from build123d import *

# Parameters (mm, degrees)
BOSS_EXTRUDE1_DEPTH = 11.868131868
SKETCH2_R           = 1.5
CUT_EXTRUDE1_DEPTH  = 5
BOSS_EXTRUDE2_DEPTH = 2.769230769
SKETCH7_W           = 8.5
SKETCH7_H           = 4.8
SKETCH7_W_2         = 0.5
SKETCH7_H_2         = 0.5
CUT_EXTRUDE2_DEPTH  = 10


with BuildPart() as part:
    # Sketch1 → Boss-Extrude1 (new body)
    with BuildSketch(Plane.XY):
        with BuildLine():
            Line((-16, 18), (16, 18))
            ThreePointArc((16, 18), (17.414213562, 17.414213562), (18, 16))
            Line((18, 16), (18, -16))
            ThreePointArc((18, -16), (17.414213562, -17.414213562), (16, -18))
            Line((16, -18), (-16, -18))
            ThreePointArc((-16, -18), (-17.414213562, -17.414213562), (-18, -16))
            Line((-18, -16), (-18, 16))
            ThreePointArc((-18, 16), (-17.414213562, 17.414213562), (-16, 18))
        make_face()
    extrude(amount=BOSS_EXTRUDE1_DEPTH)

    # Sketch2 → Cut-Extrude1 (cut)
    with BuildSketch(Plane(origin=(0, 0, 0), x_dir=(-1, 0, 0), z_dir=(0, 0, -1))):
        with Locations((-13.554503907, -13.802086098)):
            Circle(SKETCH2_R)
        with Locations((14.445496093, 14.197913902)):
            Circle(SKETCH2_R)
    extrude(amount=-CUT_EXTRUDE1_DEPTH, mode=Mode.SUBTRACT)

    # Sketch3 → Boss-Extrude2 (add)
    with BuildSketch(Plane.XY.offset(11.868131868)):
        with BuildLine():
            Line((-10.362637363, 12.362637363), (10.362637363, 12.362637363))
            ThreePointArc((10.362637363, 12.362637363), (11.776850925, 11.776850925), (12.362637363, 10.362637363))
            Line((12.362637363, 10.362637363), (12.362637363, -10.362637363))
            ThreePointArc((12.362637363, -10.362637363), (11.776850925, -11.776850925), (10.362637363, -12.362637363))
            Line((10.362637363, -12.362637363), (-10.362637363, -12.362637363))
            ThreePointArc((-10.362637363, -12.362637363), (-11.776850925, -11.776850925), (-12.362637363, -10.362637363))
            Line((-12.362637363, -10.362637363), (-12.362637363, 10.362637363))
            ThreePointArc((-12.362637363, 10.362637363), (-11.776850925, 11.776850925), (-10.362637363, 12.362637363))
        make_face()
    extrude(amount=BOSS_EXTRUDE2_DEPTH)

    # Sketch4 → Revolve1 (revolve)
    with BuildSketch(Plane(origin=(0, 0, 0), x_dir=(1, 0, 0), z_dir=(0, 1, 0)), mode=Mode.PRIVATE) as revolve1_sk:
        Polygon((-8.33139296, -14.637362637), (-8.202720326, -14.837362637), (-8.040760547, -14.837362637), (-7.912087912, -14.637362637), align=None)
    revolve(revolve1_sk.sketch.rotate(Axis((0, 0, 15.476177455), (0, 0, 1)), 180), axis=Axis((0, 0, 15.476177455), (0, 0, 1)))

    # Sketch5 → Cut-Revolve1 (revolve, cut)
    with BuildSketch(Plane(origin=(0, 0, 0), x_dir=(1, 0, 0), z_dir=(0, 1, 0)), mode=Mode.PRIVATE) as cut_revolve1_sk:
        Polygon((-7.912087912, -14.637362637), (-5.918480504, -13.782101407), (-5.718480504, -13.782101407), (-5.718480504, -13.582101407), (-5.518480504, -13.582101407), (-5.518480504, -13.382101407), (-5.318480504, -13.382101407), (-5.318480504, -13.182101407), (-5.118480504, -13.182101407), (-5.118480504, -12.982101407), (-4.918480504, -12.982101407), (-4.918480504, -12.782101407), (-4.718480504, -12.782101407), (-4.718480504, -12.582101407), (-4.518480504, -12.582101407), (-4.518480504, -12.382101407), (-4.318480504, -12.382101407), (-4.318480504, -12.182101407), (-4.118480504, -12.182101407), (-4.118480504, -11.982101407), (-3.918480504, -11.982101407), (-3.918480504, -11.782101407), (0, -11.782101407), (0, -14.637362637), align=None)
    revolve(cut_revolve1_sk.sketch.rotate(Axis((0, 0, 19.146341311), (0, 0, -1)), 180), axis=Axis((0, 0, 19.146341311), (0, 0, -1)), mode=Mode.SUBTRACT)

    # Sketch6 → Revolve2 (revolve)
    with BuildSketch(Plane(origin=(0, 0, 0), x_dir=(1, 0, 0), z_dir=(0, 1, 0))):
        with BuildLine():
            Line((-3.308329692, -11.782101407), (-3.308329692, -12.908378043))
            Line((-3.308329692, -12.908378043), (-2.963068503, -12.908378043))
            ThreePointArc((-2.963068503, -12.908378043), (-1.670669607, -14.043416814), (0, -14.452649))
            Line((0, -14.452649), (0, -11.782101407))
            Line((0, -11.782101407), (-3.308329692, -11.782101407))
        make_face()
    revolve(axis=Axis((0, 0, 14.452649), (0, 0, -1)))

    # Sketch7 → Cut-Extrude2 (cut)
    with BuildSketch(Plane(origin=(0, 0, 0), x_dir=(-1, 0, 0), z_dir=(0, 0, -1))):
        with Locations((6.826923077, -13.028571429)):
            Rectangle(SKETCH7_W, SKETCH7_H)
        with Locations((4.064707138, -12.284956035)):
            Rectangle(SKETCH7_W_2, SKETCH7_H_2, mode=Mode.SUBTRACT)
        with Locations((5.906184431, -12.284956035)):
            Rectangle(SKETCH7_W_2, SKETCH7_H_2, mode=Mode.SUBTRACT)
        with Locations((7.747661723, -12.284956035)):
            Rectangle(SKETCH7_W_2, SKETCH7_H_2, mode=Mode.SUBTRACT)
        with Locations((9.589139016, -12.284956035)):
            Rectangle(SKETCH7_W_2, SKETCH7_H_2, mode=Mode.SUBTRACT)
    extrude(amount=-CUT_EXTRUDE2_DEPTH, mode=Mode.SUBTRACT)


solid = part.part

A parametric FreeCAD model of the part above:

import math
import FreeCAD as App
import Part
import Sketcher
from FreeCAD import Vector
Q = App.Units.Quantity


def add_polygon(sketch, points):
    """Adds a closed chain of lines whose ends are joined by coincident constraints."""
    first, n = sketch.GeometryCount, len(points)
    for a, b in zip(points, points[1:] + points[:1]):
        sketch.addGeometry(Part.LineSegment(App.Vector(*a, 0), App.Vector(*b, 0)), False)
    for i in range(n):
        sketch.addConstraint(Sketcher.Constraint("Coincident", first + i, 2, first + (i + 1) % n, 1))

doc = App.newDocument("Part")
body = doc.addObject("PartDesign::Body", "Body")

# Sketch on XY plane
sketch1 = body.newObject("Sketcher::SketchObject", "Sketch")
sketch1.AttachmentSupport = (doc.getObject("XY_Plane"), [""])
sketch1.MapMode = "FlatFace"
sketch1.addGeometry(Part.LineSegment(Vector(16, 18, 0), Vector(-16, 18, 0)), False)
sketch1.addGeometry(Part.ArcOfCircle(Part.Circle(Vector(-16, 16, 0), Vector(0, 0, 1), 2), math.radians(90), math.radians(180)), False)
sketch1.addGeometry(Part.LineSegment(Vector(-18, 16, 0), Vector(-18, -16, 0)), False)
sketch1.addGeometry(Part.ArcOfCircle(Part.Circle(Vector(-16, -16, 0), Vector(0, 0, 1), 2), math.radians(-180), math.radians(-90)), False)
sketch1.addGeometry(Part.LineSegment(Vector(-16, -18, 0), Vector(16, -18, 0)), False)
sketch1.addGeometry(Part.ArcOfCircle(Part.Circle(Vector(16, -16, 0), Vector(0, 0, 1), 2), math.radians(-90), math.radians(0)), False)
sketch1.addGeometry(Part.LineSegment(Vector(18, -16, 0), Vector(18, 16, 0)), False)
sketch1.addGeometry(Part.ArcOfCircle(Part.Circle(Vector(16, 16, 0), Vector(0, 0, 1), 2), math.radians(0), math.radians(90)), False)
sketch1.addConstraint(Sketcher.Constraint("Tangent", 0, 2, 1, 1))
sketch1.addConstraint(Sketcher.Constraint("Tangent", 1, 2, 2, 1))
sketch1.addConstraint(Sketcher.Constraint("Tangent", 2, 2, 3, 1))
sketch1.addConstraint(Sketcher.Constraint("Tangent", 3, 2, 4, 1))
sketch1.addConstraint(Sketcher.Constraint("Tangent", 4, 2, 5, 1))
sketch1.addConstraint(Sketcher.Constraint("Tangent", 5, 2, 6, 1))
sketch1.addConstraint(Sketcher.Constraint("Tangent", 6, 2, 7, 1))
sketch1.addConstraint(Sketcher.Constraint("Tangent", 7, 2, 0, 1))
sketch1.addConstraint(Sketcher.Constraint("Horizontal", 0))
sketch1.addConstraint(Sketcher.Constraint("Vertical", 2))
sketch1.addConstraint(Sketcher.Constraint("Horizontal", 4))
sketch1.addConstraint(Sketcher.Constraint("Vertical", 6))
sketch1.addConstraint(Sketcher.Constraint("Equal", 1, 3))
sketch1.addConstraint(Sketcher.Constraint("Equal", 3, 5))
sketch1.addConstraint(Sketcher.Constraint("Equal", 5, 7))
sketch1.addConstraint(Sketcher.Constraint("Symmetric", 1, 3, 5, 3, -1, 1))
sketch1.addConstraint(Sketcher.Constraint("Equal", 4, 2))
sketch1.addConstraint(Sketcher.Constraint("Radius", 1, Q("2 mm")))
sketch1.addConstraint(Sketcher.Constraint("DistanceX", 0, 2, 0, 1, Q("32 mm")))
pad1 = body.newObject("PartDesign::Pad", "Pad")
pad1.Profile = sketch1
pad1.Length = 11.868132

# Sketch on XY plane
sketch2 = body.newObject("Sketcher::SketchObject", "Sketch001")
sketch2.AttachmentSupport = (doc.getObject("XY_Plane"), [""])
sketch2.MapMode = "FlatFace"
sketch2.addGeometry(Part.Circle(Vector(13.6, -13.8, 0), Vector(0, 0, 1), 1.5), False)
sketch2.addGeometry(Part.Circle(Vector(-14.4, 14.2, 0), Vector(0, 0, 1), 1.5), False)
sketch2.addConstraint(Sketcher.Constraint("Equal", 0, 1))
sketch2.addConstraint(Sketcher.Constraint("Diameter", 0, Q("3 mm")))
sketch2.addConstraint(Sketcher.Constraint("DistanceX", 1, 3, 0, 3, Q("28 mm")))
sketch2.addConstraint(Sketcher.Constraint("DistanceY", 0, 3, 1, 3, Q("28 mm")))
sketch2.addConstraint(Sketcher.Constraint("DistanceX", -1, 1, 0, 3, Q("13.554504 mm")))
sketch2.addConstraint(Sketcher.Constraint("DistanceY", 0, 3, -1, 1, Q("13.802086 mm")))
pocket1 = body.newObject("PartDesign::Pocket", "Pocket")
pocket1.Profile = sketch2
pocket1.Length = 5
pocket1.Reversed = True

# Sketch on XY plane
sketch3 = body.newObject("Sketcher::SketchObject", "Sketch002")
sketch3.AttachmentSupport = (doc.getObject("XY_Plane"), [""])
sketch3.MapMode = "FlatFace"
sketch3.AttachmentOffset = App.Placement(Vector(0, 0, 11.868132), App.Rotation())
sketch3.addGeometry(Part.LineSegment(Vector(10.4, 12.4, 0), Vector(-10.4, 12.4, 0)), False)
sketch3.addGeometry(Part.ArcOfCircle(Part.Circle(Vector(-10.4, 10.4, 0), Vector(0, 0, 1), 2), math.radians(90), math.radians(180)), False)
sketch3.addGeometry(Part.LineSegment(Vector(-12.4, 10.4, 0), Vector(-12.4, -10.4, 0)), False)
sketch3.addGeometry(Part.ArcOfCircle(Part.Circle(Vector(-10.4, -10.4, 0), Vector(0, 0, 1), 2), math.radians(-180), math.radians(-90)), False)
sketch3.addGeometry(Part.LineSegment(Vector(-10.4, -12.4, 0), Vector(10.4, -12.4, 0)), False)
sketch3.addGeometry(Part.ArcOfCircle(Part.Circle(Vector(10.4, -10.4, 0), Vector(0, 0, 1), 2), math.radians(-90), math.radians(0)), False)
sketch3.addGeometry(Part.LineSegment(Vector(12.4, -10.4, 0), Vector(12.4, 10.4, 0)), False)
sketch3.addGeometry(Part.ArcOfCircle(Part.Circle(Vector(10.4, 10.4, 0), Vector(0, 0, 1), 2), math.radians(0), math.radians(90)), False)
sketch3.addConstraint(Sketcher.Constraint("Tangent", 0, 2, 1, 1))
sketch3.addConstraint(Sketcher.Constraint("Tangent", 1, 2, 2, 1))
sketch3.addConstraint(Sketcher.Constraint("Tangent", 2, 2, 3, 1))
sketch3.addConstraint(Sketcher.Constraint("Tangent", 3, 2, 4, 1))
sketch3.addConstraint(Sketcher.Constraint("Tangent", 4, 2, 5, 1))
sketch3.addConstraint(Sketcher.Constraint("Tangent", 5, 2, 6, 1))
sketch3.addConstraint(Sketcher.Constraint("Tangent", 6, 2, 7, 1))
sketch3.addConstraint(Sketcher.Constraint("Tangent", 7, 2, 0, 1))
sketch3.addConstraint(Sketcher.Constraint("Horizontal", 0))
sketch3.addConstraint(Sketcher.Constraint("Vertical", 2))
sketch3.addConstraint(Sketcher.Constraint("Horizontal", 4))
sketch3.addConstraint(Sketcher.Constraint("Vertical", 6))
sketch3.addConstraint(Sketcher.Constraint("Equal", 1, 3))
sketch3.addConstraint(Sketcher.Constraint("Equal", 3, 5))
sketch3.addConstraint(Sketcher.Constraint("Equal", 5, 7))
sketch3.addConstraint(Sketcher.Constraint("Symmetric", 1, 3, 5, 3, -1, 1))
sketch3.addConstraint(Sketcher.Constraint("Equal", 4, 2))
sketch3.addConstraint(Sketcher.Constraint("Radius", 1, Q("2 mm")))
sketch3.addConstraint(Sketcher.Constraint("DistanceX", 0, 2, 0, 1, Q("20.725275 mm")))
pad2 = body.newObject("PartDesign::Pad", "Pad001")
pad2.Profile = sketch3
pad2.Length = 2.769231

# Sketch on XZ plane
sketch4 = body.newObject("Sketcher::SketchObject", "Sketch003")
sketch4.AttachmentSupport = (doc.getObject("XZ_Plane"), [""])
sketch4.MapMode = "FlatFace"
add_polygon(sketch4, [(-8.33, 14.64), (-8.2, 14.84), (-8.04, 14.84), (-7.91, 14.64)])  # lines 0-3
sketch4.addConstraint(Sketcher.Constraint("Horizontal", 1))
sketch4.addConstraint(Sketcher.Constraint("Horizontal", 3))
sketch4.addConstraint(Sketcher.Constraint("Equal", 0, 2))
sketch4.addConstraint(Sketcher.Constraint("DistanceY", 2, 2, 1, 2, Q("0.2 mm")))
sketch4.addConstraint(Sketcher.Constraint("DistanceX", 1, 1, 1, 2, Q("0.16196 mm")))
sketch4.addConstraint(Sketcher.Constraint("DistanceX", 3, 2, 3, 1, Q("0.419305 mm")))
sketch4.addConstraint(Sketcher.Constraint("DistanceX", 0, 2, -1, 1, Q("8.20272 mm")))
sketch4.addConstraint(Sketcher.Constraint("DistanceY", -1, 1, 0, 2, Q("14.837363 mm")))
revolution = body.newObject("PartDesign::Revolution", "Revolution")
revolution.Profile = sketch4
revolution.ReferenceAxis = (sketch4, ["V_Axis"])
revolution.Angle = 360

# Sketch on XZ plane
sketch5 = body.newObject("Sketcher::SketchObject", "Sketch004")
sketch5.AttachmentSupport = (doc.getObject("XZ_Plane"), [""])
sketch5.MapMode = "FlatFace"
add_polygon(sketch5, [(-5.92, 13.78), (-7.91, 14.64), (0, 14.64), (0, 11.78), (-3.92, 11.78), (-3.92, 11.98), (-4.12, 11.98), (-4.12, 12.18), (-4.32, 12.18), (-4.32, 12.38), (-4.52, 12.38), (-4.52, 12.58), (-4.72, 12.58), (-4.72, 12.78), (-4.92, 12.78), (-4.92, 12.98), (-5.12, 12.98), (-5.12, 13.18), (-5.32, 13.18), (-5.32, 13.38), (-5.52, 13.38), (-5.52, 13.58), (-5.72, 13.58), (-5.72, 13.78)])  # lines 0-23
sketch5.addConstraint(Sketcher.Constraint("Horizontal", 1))
sketch5.addConstraint(Sketcher.Constraint("Vertical", 2))
sketch5.addConstraint(Sketcher.Constraint("Horizontal", 3))
sketch5.addConstraint(Sketcher.Constraint("Vertical", 4))
sketch5.addConstraint(Sketcher.Constraint("Horizontal", 5))
sketch5.addConstraint(Sketcher.Constraint("Vertical", 6))
sketch5.addConstraint(Sketcher.Constraint("Horizontal", 7))
sketch5.addConstraint(Sketcher.Constraint("Vertical", 8))
sketch5.addConstraint(Sketcher.Constraint("Horizontal", 9))
sketch5.addConstraint(Sketcher.Constraint("Vertical", 10))
sketch5.addConstraint(Sketcher.Constraint("Horizontal", 11))
sketch5.addConstraint(Sketcher.Constraint("Vertical", 12))
sketch5.addConstraint(Sketcher.Constraint("Horizontal", 13))
sketch5.addConstraint(Sketcher.Constraint("Vertical", 14))
sketch5.addConstraint(Sketcher.Constraint("Horizontal", 15))
sketch5.addConstraint(Sketcher.Constraint("Vertical", 16))
sketch5.addConstraint(Sketcher.Constraint("Horizontal", 17))
sketch5.addConstraint(Sketcher.Constraint("Vertical", 18))
sketch5.addConstraint(Sketcher.Constraint("Horizontal", 19))
sketch5.addConstraint(Sketcher.Constraint("Vertical", 20))
sketch5.addConstraint(Sketcher.Constraint("Horizontal", 21))
sketch5.addConstraint(Sketcher.Constraint("Vertical", 22))
sketch5.addConstraint(Sketcher.Constraint("Horizontal", 23))
sketch5.addConstraint(Sketcher.Constraint("PointOnObject", 1, 2, -2))
sketch5.addConstraint(Sketcher.Constraint("Equal", 5, 7))
sketch5.addConstraint(Sketcher.Constraint("Equal", 7, 9))
sketch5.addConstraint(Sketcher.Constraint("Equal", 9, 11))
sketch5.addConstraint(Sketcher.Constraint("Equal", 11, 13))
sketch5.addConstraint(Sketcher.Constraint("Equal", 13, 15))
sketch5.addConstraint(Sketcher.Constraint("Equal", 15, 17))
sketch5.addConstraint(Sketcher.Constraint("Equal", 17, 19))
sketch5.addConstraint(Sketcher.Constraint("Equal", 19, 21))
sketch5.addConstraint(Sketcher.Constraint("Equal", 21, 23))
sketch5.addConstraint(Sketcher.Constraint("Equal", 23, 4))
sketch5.addConstraint(Sketcher.Constraint("Equal", 4, 6))
sketch5.addConstraint(Sketcher.Constraint("Equal", 6, 8))
sketch5.addConstraint(Sketcher.Constraint("Equal", 8, 10))
sketch5.addConstraint(Sketcher.Constraint("Equal", 10, 12))
sketch5.addConstraint(Sketcher.Constraint("Equal", 12, 14))
sketch5.addConstraint(Sketcher.Constraint("Equal", 14, 16))
sketch5.addConstraint(Sketcher.Constraint("Equal", 16, 18))
sketch5.addConstraint(Sketcher.Constraint("Equal", 18, 20))
sketch5.addConstraint(Sketcher.Constraint("Equal", 20, 22))
sketch5.addConstraint(Sketcher.Constraint("DistanceX", 5, 2, 5, 1, Q("0.2 mm")))
sketch5.addConstraint(Sketcher.Constraint("DistanceX", 3, 2, 3, 1, Q("3.918481 mm")))
sketch5.addConstraint(Sketcher.Constraint("DistanceY", 2, 2, 2, 1, Q("2.855261 mm")))
sketch5.addConstraint(Sketcher.Constraint("DistanceY", -1, 1, 2, 2, Q("11.782101 mm")))
sketch5.addConstraint(Sketcher.Constraint("Distance", 0, Q("2.169318 mm")))
groove = body.newObject("PartDesign::Groove", "Groove")
groove.Profile = sketch5
groove.ReferenceAxis = (sketch5, ["V_Axis"])
groove.Angle = 360

# Sketch on XZ plane
sketch6 = body.newObject("Sketcher::SketchObject", "Sketch005")
sketch6.AttachmentSupport = (doc.getObject("XZ_Plane"), [""])
sketch6.MapMode = "FlatFace"
sketch6.addGeometry(Part.LineSegment(Vector(-3.31, 11.78, 0), Vector(-3.31, 12.91, 0)), False)
sketch6.addGeometry(Part.LineSegment(Vector(-3.31, 12.91, 0), Vector(-2.96, 12.91, 0)), False)
sketch6.addGeometry(Part.ArcOfCircle(Part.Circle(Vector(0, 10.84, 0), Vector(0, 0, 1), 3.61), math.radians(90), math.radians(145)), False)
sketch6.addGeometry(Part.LineSegment(Vector(0, 14.45, 0), Vector(0, 11.78, 0)), False)
sketch6.addGeometry(Part.LineSegment(Vector(0, 11.78, 0), Vector(-3.31, 11.78, 0)), False)
sketch6.addConstraint(Sketcher.Constraint("Coincident", 0, 2, 1, 1))
sketch6.addConstraint(Sketcher.Constraint("Coincident", 1, 2, 2, 2))
sketch6.addConstraint(Sketcher.Constraint("Coincident", 2, 1, 3, 1))
sketch6.addConstraint(Sketcher.Constraint("Coincident", 3, 2, 4, 1))
sketch6.addConstraint(Sketcher.Constraint("Coincident", 4, 2, 0, 1))
sketch6.addConstraint(Sketcher.Constraint("Vertical", 0))
sketch6.addConstraint(Sketcher.Constraint("Horizontal", 1))
sketch6.addConstraint(Sketcher.Constraint("Vertical", 3))
sketch6.addConstraint(Sketcher.Constraint("Horizontal", 4))
sketch6.addConstraint(Sketcher.Constraint("PointOnObject", 2, 3, -2))
sketch6.addConstraint(Sketcher.Constraint("PointOnObject", 2, 1, -2))
sketch6.addConstraint(Sketcher.Constraint("Radius", 2, Q("3.614828 mm")))
sketch6.addConstraint(Sketcher.Constraint("DistanceX", 1, 1, 1, 2, Q("0.345261 mm")))
sketch6.addConstraint(Sketcher.Constraint("DistanceX", 4, 2, 4, 1, Q("3.30833 mm")))
sketch6.addConstraint(Sketcher.Constraint("DistanceY", -1, 1, 3, 2, Q("11.782101 mm")))
sketch6.addConstraint(Sketcher.Constraint("DistanceY", 0, 1, 0, 2, Q("1.126277 mm")))
revolution2 = body.newObject("PartDesign::Revolution", "Revolution001")
revolution2.Profile = sketch6
revolution2.ReferenceAxis = (sketch6, ["V_Axis"])
revolution2.Angle = 360

# Sketch on XY plane
sketch7 = body.newObject("Sketcher::SketchObject", "Sketch006")
sketch7.AttachmentSupport = (doc.getObject("XY_Plane"), [""])
sketch7.MapMode = "FlatFace"
add_polygon(sketch7, [(-2.6, -10.6), (-2.6, -15.4), (-11.1, -15.4), (-11.1, -10.6)])  # lines 0-3
add_polygon(sketch7, [(-4.3, -12.5), (-3.8, -12.5), (-3.8, -12), (-4.3, -12)])  # lines 4-7
add_polygon(sketch7, [(-6.2, -12.5), (-5.7, -12.5), (-5.7, -12), (-6.2, -12)])  # lines 8-11
add_polygon(sketch7, [(-8, -12.5), (-7.5, -12.5), (-7.5, -12), (-8, -12)])  # lines 12-15
add_polygon(sketch7, [(-9.8, -12.5), (-9.3, -12.5), (-9.3, -12), (-9.8, -12)])  # lines 16-19
sketch7.addConstraint(Sketcher.Constraint("Vertical", 0))
sketch7.addConstraint(Sketcher.Constraint("Horizontal", 1))
sketch7.addConstraint(Sketcher.Constraint("Vertical", 2))
sketch7.addConstraint(Sketcher.Constraint("Horizontal", 3))
sketch7.addConstraint(Sketcher.Constraint("Horizontal", 4))
sketch7.addConstraint(Sketcher.Constraint("Vertical", 5))
sketch7.addConstraint(Sketcher.Constraint("Horizontal", 6))
sketch7.addConstraint(Sketcher.Constraint("Vertical", 7))
sketch7.addConstraint(Sketcher.Constraint("Horizontal", 8))
sketch7.addConstraint(Sketcher.Constraint("Vertical", 9))
sketch7.addConstraint(Sketcher.Constraint("Horizontal", 10))
sketch7.addConstraint(Sketcher.Constraint("Vertical", 11))
sketch7.addConstraint(Sketcher.Constraint("Horizontal", 12))
sketch7.addConstraint(Sketcher.Constraint("Vertical", 13))
sketch7.addConstraint(Sketcher.Constraint("Horizontal", 14))
sketch7.addConstraint(Sketcher.Constraint("Vertical", 15))
sketch7.addConstraint(Sketcher.Constraint("Horizontal", 16))
sketch7.addConstraint(Sketcher.Constraint("Vertical", 17))
sketch7.addConstraint(Sketcher.Constraint("Horizontal", 18))
sketch7.addConstraint(Sketcher.Constraint("Vertical", 19))
sketch7.addConstraint(Sketcher.Constraint("Horizontal", 7, 2, 8, 2))
sketch7.addConstraint(Sketcher.Constraint("Horizontal", 6, 2, 9, 2))
sketch7.addConstraint(Sketcher.Constraint("Horizontal", 11, 2, 12, 2))
sketch7.addConstraint(Sketcher.Constraint("Horizontal", 10, 2, 13, 2))
sketch7.addConstraint(Sketcher.Constraint("Horizontal", 15, 2, 16, 2))
sketch7.addConstraint(Sketcher.Constraint("Horizontal", 14, 2, 17, 2))
sketch7.addConstraint(Sketcher.Constraint("Equal", 6, 8))
sketch7.addConstraint(Sketcher.Constraint("Equal", 10, 12))
sketch7.addConstraint(Sketcher.Constraint("Equal", 14, 16))
sketch7.addConstraint(Sketcher.Constraint("Equal", 18, 5))
sketch7.addConstraint(Sketcher.Constraint("DistanceX", 1, 2, 1, 1, Q("8.5 mm")))
sketch7.addConstraint(Sketcher.Constraint("DistanceX", 4, 1, 4, 2, Q("0.5 mm")))
sketch7.addConstraint(Sketcher.Constraint("DistanceY", 0, 2, 0, 1, Q("4.8 mm")))
sketch7.addConstraint(Sketcher.Constraint("DistanceY", 0, 2, -1, 1, Q("15.428571 mm")))
sketch7.addConstraint(Sketcher.Constraint("DistanceX", 12, 2, -1, 1, Q("7.497662 mm")))
sketch7.addConstraint(Sketcher.Constraint("DistanceX", 16, 2, -1, 1, Q("9.339139 mm")))
sketch7.addConstraint(Sketcher.Constraint("DistanceX", 8, 2, 3, 2, Q("3.079261 mm")))
sketch7.addConstraint(Sketcher.Constraint("DistanceX", 0, 2, -1, 1, Q("2.576923 mm")))
sketch7.addConstraint(Sketcher.Constraint("DistanceX", 4, 2, -1, 1, Q("3.814707 mm")))
sketch7.addConstraint(Sketcher.Constraint("DistanceY", 4, 2, -1, 1, Q("12.534956 mm")))
pocket2 = body.newObject("PartDesign::Pocket", "Pocket001")
pocket2.Profile = sketch7
pocket2.Length = 10
pocket2.Reversed = True

doc.recompute()
